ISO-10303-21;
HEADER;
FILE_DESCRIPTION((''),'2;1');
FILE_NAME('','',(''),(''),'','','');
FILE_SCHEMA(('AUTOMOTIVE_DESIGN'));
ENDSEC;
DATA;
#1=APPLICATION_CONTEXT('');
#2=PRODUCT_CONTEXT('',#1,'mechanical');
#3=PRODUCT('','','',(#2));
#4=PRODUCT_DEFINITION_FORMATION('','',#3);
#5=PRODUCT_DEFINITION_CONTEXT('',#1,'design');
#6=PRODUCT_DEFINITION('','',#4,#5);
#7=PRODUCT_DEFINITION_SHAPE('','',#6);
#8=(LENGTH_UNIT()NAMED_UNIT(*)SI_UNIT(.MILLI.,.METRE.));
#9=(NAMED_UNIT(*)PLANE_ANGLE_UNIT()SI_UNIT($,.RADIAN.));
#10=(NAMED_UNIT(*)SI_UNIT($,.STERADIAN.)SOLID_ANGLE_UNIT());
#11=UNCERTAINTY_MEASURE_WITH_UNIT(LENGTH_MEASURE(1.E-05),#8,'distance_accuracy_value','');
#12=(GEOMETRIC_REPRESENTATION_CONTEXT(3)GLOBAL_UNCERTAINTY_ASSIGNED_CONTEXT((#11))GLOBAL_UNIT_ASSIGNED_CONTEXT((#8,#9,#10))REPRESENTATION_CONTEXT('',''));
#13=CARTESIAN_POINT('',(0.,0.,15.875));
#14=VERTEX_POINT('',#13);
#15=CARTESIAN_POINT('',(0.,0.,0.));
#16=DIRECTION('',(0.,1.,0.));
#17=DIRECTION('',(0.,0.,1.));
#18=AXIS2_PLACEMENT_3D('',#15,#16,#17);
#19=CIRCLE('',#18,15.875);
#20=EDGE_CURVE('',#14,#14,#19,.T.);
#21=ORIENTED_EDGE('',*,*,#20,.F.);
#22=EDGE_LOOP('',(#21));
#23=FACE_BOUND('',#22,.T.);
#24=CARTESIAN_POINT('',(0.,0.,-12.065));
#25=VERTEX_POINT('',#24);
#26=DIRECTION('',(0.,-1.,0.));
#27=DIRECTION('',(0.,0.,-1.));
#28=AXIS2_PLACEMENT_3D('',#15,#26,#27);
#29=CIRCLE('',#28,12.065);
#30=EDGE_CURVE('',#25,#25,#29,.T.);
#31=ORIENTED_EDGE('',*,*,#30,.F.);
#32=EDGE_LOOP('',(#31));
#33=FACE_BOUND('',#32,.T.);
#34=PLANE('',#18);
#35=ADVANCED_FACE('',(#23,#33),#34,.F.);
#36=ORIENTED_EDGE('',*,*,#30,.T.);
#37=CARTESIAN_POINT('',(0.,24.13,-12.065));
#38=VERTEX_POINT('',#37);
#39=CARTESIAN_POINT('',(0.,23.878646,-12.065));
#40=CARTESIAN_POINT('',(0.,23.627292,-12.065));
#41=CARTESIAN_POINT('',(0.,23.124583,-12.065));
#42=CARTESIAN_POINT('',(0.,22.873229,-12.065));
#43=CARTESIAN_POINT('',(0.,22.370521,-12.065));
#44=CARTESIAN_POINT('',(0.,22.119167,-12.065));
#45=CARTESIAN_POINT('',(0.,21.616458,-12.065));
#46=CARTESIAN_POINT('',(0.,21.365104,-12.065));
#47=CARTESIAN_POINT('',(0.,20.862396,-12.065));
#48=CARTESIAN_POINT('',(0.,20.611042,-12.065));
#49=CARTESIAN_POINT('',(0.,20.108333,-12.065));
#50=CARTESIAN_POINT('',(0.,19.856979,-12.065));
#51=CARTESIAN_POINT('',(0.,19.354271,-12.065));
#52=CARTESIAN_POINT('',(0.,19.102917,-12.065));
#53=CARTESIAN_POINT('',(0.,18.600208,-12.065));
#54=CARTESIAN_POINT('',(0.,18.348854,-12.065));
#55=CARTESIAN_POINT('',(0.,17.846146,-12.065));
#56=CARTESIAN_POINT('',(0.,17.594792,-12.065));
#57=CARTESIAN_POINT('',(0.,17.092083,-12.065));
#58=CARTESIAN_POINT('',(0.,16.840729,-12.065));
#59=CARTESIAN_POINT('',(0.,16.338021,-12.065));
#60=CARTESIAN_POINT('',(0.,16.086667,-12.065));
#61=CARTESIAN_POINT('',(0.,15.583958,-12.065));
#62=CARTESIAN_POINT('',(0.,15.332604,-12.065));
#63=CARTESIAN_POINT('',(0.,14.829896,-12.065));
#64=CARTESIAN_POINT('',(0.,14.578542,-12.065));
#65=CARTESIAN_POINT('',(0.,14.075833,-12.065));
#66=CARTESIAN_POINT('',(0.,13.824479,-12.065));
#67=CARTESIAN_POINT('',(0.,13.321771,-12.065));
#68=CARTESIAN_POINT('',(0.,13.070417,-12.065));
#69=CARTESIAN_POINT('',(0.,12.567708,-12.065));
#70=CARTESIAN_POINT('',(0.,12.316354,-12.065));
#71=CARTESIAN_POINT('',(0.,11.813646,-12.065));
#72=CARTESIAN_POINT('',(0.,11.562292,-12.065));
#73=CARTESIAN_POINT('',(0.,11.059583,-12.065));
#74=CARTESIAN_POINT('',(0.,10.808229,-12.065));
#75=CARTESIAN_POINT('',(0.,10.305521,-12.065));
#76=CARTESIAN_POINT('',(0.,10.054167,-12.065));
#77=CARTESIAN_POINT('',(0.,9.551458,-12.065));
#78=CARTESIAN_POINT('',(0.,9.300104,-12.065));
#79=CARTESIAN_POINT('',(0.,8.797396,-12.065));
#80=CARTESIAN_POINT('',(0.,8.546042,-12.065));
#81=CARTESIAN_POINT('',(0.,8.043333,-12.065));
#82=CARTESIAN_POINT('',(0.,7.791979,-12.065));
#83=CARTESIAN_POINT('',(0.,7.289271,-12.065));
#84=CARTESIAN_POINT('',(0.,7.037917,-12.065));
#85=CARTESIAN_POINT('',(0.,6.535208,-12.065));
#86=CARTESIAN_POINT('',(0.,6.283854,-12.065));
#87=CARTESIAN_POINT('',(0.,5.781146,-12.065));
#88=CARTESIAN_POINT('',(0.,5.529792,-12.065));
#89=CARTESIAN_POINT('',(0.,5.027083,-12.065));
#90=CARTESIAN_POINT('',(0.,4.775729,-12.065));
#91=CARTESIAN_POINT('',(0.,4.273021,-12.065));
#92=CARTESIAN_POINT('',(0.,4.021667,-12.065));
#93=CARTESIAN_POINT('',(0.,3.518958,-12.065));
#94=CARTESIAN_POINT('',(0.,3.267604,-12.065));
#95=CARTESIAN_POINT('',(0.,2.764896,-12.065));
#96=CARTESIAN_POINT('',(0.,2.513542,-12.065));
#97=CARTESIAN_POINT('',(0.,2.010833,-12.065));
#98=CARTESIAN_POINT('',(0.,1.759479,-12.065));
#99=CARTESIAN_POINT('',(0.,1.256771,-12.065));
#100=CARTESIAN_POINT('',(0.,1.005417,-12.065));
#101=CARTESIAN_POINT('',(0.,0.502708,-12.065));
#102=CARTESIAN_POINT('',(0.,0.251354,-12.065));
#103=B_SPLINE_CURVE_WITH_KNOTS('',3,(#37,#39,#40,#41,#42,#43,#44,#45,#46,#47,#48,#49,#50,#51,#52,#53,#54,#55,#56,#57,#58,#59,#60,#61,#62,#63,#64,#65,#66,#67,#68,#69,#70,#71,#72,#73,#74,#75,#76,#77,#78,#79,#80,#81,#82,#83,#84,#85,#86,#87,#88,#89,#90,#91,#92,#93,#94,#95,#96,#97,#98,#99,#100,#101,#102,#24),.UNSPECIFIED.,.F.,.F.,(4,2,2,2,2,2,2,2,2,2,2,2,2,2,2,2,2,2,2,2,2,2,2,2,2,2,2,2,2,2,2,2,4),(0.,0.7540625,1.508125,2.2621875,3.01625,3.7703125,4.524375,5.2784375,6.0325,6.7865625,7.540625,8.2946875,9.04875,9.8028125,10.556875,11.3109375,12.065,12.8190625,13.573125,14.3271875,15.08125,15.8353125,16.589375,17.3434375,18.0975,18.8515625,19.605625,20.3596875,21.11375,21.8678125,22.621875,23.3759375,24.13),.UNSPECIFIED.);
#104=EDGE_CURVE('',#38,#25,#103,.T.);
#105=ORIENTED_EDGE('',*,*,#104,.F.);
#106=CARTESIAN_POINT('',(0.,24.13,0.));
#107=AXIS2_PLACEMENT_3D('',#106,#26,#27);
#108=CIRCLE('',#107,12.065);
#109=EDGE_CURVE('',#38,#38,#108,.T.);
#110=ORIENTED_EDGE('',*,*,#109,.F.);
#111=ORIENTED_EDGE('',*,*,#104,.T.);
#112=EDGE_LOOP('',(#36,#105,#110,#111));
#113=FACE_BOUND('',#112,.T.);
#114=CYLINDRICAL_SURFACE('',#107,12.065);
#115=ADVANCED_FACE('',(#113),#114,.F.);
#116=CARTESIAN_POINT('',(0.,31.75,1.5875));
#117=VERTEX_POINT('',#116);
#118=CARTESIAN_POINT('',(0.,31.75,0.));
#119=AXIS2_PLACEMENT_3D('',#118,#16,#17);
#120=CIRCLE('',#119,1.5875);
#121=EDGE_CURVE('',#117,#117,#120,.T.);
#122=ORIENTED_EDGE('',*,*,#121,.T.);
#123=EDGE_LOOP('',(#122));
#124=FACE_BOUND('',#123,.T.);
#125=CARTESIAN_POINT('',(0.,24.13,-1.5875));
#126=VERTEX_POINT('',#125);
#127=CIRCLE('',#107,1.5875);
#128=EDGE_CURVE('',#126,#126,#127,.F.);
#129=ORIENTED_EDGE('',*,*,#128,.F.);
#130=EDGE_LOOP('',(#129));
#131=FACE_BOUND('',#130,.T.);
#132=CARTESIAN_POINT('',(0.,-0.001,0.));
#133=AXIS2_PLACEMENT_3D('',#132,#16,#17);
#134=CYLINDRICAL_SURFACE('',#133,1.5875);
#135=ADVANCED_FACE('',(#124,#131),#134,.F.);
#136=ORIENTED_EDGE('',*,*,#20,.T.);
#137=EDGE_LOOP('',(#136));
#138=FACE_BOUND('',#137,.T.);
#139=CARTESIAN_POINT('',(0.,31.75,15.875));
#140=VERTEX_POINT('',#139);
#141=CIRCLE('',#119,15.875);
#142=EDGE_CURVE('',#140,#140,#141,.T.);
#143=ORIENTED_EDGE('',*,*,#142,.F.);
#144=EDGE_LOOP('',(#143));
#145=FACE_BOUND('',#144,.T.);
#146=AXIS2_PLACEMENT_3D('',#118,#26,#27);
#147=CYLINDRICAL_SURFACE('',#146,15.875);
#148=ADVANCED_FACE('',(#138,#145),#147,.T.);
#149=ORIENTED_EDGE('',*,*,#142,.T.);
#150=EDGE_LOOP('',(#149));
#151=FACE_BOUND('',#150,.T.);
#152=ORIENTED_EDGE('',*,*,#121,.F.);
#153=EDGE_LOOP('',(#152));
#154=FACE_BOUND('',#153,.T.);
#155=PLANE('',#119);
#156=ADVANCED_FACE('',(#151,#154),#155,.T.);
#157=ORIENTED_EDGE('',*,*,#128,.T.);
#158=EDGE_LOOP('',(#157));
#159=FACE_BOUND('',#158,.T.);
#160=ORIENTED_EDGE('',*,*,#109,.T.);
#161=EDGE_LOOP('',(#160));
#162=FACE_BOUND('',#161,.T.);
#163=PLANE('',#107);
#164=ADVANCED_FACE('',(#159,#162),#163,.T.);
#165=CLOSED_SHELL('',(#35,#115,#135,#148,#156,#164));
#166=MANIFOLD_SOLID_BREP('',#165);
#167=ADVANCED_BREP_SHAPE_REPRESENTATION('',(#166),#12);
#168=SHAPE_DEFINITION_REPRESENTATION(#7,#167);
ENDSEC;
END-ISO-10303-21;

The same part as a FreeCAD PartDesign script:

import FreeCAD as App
import Part
import Sketcher
from FreeCAD import Vector
Q = App.Units.Quantity

doc = App.newDocument("Part")
body = doc.addObject("PartDesign::Body", "Body")

sketch1 = body.newObject("Sketcher::SketchObject", "Sketch")
sketch1.AttachmentSupport = (doc.getObject("XZ_Plane"), [""])
sketch1.MapMode = "FlatFace"
sketch1.addGeometry(Part.Circle(Vector(0, 0, 0), Vector(0, 0, 1), 16), False)
sketch1.addConstraint(Sketcher.Constraint("Coincident", 0, 3, -1, 1))
sketch1.addConstraint(Sketcher.Constraint("Diameter", 0, Q("1.25 in")))
pad1 = body.newObject("PartDesign::Pad", "Pad")
pad1.Profile = sketch1
pad1.Length = Q("1.25 in")
pad1.Reversed = True

sketch2 = body.newObject("Sketcher::SketchObject", "Sketch001")
sketch2.AttachmentSupport = (doc.getObject("XZ_Plane"), [""])
sketch2.MapMode = "FlatFace"
sketch2.addGeometry(Part.Circle(Vector(0, 0, 0), Vector(0, 0, 1), 12), False)
sketch2.addConstraint(Sketcher.Constraint("Coincident", 0, 3, -1, 1))
sketch2.addConstraint(Sketcher.Constraint("Diameter", 0, Q("0.95 in")))
pocket1 = body.newObject("PartDesign::Pocket", "Pocket")
pocket1.Profile = sketch2
pocket1.Length = Q("0.95 in")

sketch3 = body.newObject("Sketcher::SketchObject", "Sketch002")
sketch3.AttachmentSupport = (doc.getObject("XZ_Plane"), [""])
sketch3.MapMode = "FlatFace"
sketch3.AttachmentOffset = App.Placement(Vector(0, 0, -1.25 * 25.4), App.Rotation())
sketch3.addGeometry(Part.Circle(Vector(0, 0, 0), Vector(0, 0, 1), 1.6), False)
sketch3.addConstraint(Sketcher.Constraint("Coincident", 0, 3, -1, 1))
sketch3.addConstraint(Sketcher.Constraint("Diameter", 0, Q("0.125 in")))
pocket2 = body.newObject("PartDesign::Pocket", "Pocket001")
pocket2.Profile = sketch3
pocket2.Type = "UpToFirst"
pocket2.Reversed = True

doc.recompute()
